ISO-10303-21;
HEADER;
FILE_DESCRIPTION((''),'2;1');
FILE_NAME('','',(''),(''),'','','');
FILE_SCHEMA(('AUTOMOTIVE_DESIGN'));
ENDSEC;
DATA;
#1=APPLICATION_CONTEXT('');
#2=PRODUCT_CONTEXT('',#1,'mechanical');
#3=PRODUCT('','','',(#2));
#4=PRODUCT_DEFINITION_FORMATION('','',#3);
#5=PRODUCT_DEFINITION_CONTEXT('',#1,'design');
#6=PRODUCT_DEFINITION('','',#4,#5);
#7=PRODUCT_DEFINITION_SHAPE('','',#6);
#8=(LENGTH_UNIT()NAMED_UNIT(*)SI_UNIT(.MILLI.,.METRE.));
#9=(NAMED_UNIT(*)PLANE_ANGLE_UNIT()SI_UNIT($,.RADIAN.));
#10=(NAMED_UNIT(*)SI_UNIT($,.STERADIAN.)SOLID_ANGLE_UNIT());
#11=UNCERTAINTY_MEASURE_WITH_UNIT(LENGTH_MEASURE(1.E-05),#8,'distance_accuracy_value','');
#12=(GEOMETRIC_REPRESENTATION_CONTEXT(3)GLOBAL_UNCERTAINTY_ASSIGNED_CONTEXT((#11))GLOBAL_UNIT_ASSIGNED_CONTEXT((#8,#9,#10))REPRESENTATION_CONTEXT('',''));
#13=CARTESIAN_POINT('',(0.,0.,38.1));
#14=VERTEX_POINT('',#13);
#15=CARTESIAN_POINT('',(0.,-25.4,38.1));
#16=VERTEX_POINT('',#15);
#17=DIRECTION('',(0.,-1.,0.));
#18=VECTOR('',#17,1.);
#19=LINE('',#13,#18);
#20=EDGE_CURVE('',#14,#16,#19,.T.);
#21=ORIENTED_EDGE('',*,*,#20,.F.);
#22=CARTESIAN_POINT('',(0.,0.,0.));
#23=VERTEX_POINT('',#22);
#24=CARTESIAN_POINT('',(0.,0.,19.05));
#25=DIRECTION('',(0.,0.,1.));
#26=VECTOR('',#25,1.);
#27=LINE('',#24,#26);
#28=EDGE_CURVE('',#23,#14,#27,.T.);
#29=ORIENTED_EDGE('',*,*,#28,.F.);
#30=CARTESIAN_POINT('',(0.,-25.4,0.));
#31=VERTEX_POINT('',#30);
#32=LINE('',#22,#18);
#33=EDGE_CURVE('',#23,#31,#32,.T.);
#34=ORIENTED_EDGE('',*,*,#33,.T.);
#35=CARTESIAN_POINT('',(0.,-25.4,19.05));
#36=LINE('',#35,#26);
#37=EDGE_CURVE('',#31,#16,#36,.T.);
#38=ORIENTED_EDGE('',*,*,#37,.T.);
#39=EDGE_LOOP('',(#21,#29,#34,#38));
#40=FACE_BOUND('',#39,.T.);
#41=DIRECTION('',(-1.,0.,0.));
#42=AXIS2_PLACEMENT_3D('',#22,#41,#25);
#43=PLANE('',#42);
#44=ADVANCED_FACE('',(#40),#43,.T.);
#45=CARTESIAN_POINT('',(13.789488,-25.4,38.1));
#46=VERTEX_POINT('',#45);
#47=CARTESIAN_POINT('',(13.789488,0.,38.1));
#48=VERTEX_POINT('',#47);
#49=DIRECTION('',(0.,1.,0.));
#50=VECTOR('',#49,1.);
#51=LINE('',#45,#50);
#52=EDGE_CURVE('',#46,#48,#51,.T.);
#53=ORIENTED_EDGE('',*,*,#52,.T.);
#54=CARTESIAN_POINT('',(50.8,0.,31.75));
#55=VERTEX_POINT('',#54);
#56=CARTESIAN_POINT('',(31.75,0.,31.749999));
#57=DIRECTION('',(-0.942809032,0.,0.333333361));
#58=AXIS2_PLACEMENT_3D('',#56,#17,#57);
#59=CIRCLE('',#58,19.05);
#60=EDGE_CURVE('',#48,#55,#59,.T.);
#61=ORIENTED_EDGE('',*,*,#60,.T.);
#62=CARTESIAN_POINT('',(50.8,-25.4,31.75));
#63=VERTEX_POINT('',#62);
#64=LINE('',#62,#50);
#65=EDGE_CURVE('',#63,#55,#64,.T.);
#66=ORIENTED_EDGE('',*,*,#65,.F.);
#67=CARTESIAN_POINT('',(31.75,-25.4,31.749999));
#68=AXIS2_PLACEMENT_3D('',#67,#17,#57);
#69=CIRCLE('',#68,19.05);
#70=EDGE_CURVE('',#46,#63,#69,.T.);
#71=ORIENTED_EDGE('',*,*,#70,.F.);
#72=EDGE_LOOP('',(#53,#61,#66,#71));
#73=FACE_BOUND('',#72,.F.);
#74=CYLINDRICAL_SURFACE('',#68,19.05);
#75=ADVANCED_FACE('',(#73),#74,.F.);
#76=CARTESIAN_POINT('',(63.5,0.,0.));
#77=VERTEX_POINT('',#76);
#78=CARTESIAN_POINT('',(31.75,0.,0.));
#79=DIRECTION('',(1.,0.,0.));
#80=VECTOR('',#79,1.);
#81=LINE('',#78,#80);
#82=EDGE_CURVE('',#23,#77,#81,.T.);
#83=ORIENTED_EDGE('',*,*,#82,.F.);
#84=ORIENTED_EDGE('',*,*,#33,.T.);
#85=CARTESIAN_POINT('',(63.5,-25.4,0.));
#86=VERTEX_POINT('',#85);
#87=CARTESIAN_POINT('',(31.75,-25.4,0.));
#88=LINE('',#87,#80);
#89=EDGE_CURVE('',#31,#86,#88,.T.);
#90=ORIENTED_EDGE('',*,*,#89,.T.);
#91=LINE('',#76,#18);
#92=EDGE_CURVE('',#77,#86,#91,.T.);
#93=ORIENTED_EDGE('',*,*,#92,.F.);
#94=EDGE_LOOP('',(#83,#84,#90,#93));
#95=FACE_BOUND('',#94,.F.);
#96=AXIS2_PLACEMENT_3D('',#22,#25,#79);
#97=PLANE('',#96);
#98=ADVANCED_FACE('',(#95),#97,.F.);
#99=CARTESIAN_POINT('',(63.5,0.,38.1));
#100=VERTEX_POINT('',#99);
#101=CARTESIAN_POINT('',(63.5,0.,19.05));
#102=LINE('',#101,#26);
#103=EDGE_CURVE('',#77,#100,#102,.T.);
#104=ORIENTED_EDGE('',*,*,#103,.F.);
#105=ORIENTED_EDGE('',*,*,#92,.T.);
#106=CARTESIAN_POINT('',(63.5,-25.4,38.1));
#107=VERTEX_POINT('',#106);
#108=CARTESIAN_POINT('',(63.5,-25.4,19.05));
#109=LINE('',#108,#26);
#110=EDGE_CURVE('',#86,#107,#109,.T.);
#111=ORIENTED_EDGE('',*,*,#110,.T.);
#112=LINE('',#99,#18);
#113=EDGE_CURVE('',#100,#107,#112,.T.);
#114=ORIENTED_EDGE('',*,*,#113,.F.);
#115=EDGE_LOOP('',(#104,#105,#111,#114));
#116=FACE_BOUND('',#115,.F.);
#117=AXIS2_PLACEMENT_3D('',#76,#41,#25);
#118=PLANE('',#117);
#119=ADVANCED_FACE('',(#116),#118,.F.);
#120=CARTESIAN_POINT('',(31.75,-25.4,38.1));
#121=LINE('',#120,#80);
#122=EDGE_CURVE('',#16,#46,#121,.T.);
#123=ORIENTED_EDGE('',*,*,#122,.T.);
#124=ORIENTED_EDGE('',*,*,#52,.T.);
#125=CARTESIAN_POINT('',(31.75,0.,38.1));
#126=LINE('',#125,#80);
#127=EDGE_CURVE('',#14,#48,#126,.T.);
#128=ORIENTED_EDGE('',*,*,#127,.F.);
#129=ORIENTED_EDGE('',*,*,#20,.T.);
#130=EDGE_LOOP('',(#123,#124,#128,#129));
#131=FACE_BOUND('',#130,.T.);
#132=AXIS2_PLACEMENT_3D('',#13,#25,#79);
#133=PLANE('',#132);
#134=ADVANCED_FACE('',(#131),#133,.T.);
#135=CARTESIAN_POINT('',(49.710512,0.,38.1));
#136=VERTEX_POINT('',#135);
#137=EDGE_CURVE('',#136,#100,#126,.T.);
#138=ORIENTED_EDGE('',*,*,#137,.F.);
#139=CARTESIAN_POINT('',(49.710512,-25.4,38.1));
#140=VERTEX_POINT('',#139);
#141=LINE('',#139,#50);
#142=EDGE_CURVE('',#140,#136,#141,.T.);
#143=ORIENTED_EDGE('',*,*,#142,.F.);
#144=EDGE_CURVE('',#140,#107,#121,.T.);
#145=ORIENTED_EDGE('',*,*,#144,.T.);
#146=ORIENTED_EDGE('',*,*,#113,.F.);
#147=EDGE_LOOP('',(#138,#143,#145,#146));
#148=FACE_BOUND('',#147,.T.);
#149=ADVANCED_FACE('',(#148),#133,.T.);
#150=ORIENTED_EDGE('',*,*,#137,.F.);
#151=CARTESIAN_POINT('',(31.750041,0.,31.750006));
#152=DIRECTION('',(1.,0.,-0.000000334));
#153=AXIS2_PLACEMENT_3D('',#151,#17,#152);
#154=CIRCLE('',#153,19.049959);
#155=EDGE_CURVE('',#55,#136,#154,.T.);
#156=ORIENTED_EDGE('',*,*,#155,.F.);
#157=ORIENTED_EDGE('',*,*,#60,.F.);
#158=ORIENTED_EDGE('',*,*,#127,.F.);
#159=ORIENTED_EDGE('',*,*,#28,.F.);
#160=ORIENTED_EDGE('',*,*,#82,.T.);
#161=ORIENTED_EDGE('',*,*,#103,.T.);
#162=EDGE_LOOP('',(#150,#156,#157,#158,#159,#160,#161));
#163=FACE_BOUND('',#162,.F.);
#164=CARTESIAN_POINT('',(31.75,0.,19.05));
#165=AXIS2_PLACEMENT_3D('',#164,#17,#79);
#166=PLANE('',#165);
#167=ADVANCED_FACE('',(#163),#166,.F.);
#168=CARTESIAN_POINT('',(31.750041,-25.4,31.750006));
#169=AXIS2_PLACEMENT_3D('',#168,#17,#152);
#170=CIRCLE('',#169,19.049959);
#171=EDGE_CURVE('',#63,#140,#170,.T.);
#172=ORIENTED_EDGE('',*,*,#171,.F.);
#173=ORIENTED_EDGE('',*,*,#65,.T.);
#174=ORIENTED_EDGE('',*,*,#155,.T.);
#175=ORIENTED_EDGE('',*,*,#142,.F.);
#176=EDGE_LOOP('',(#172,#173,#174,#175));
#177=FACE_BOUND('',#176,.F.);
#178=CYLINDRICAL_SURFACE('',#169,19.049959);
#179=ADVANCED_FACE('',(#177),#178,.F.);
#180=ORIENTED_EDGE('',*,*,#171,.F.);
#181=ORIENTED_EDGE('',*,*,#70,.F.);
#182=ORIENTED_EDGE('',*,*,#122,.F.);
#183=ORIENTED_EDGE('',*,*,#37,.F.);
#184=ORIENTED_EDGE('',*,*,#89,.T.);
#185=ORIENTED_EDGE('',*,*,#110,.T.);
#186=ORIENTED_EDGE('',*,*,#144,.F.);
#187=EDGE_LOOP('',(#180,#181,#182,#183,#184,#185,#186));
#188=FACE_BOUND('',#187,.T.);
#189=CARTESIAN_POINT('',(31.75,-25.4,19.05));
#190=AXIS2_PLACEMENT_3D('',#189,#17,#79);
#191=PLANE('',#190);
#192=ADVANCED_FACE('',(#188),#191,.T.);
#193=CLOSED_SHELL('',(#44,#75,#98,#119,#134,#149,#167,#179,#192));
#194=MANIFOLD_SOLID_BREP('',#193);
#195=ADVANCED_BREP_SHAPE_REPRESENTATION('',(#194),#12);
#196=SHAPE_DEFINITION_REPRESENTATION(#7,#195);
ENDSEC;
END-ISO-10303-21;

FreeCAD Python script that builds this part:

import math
import FreeCAD as App
import Part
import Sketcher
from FreeCAD import Vector
Q = App.Units.Quantity


def add_polygon(sketch, points):
    """Adds a closed chain of lines whose ends are joined by coincident constraints."""
    first, n = sketch.GeometryCount, len(points)
    for a, b in zip(points, points[1:] + points[:1]):
        sketch.addGeometry(Part.LineSegment(App.Vector(*a, 0), App.Vector(*b, 0)), False)
    for i in range(n):
        sketch.addConstraint(Sketcher.Constraint("Coincident", first + i, 2, first + (i + 1) % n, 1))

doc = App.newDocument("Part")
body = doc.addObject("PartDesign::Body", "Body")

# Sketch on XZ plane
sketch1 = body.newObject("Sketcher::SketchObject", "Sketch")
sketch1.AttachmentSupport = (doc.getObject("XZ_Plane"), [""])
sketch1.MapMode = "FlatFace"
add_polygon(sketch1, [(0, 38.1), (0, 0), (63.5, 0), (63.5, 38.1)])  # lines 0-3
sketch1.addConstraint(Sketcher.Constraint("Vertical", 0))
sketch1.addConstraint(Sketcher.Constraint("Horizontal", 1))
sketch1.addConstraint(Sketcher.Constraint("Vertical", 2))
sketch1.addConstraint(Sketcher.Constraint("Horizontal", 3))
sketch1.addConstraint(Sketcher.Constraint("Coincident", 0, 2, -1, 1))
sketch1.addConstraint(Sketcher.Constraint("DistanceX", 1, 1, 1, 2, Q("2.5 in")))
sketch1.addConstraint(Sketcher.Constraint("DistanceY", 0, 2, 0, 1, Q("1.5 in")))
pad1 = body.newObject("PartDesign::Pad", "Pad")
pad1.Profile = sketch1
pad1.Length = Q("1 in")

# Sketch on XZ plane
sketch2 = body.newObject("Sketcher::SketchObject", "Sketch001")
sketch2.AttachmentSupport = (doc.getObject("XZ_Plane"), [""])
sketch2.MapMode = "FlatFace"
sketch2.AttachmentOffset = App.Placement(Vector(0, 0, 1 * 25.4), App.Rotation())
sketch2.addGeometry(Part.ArcOfCircle(Part.Circle(Vector(31.75, 31.749999, 0), Vector(0, 0, 1), 19.05), math.radians(160.528778), math.radians(360.000002)), False)
sketch2.addGeometry(Part.ArcOfCircle(Part.Circle(Vector(31.750041, 31.750006, 0), Vector(0, 0, 1), 19.049959), math.radians(-0.000019), math.radians(19.471244)), False)
sketch2.addGeometry(Part.LineSegment(Vector(49.710512, 38.1, 0), Vector(13.789488, 38.1, 0)), False)
sketch2.addConstraint(Sketcher.Constraint("Tangent", 0, 2, 1, 1))
sketch2.addConstraint(Sketcher.Constraint("Coincident", 1, 2, 2, 1))
sketch2.addConstraint(Sketcher.Constraint("Coincident", 2, 2, 0, 1))
sketch2.addConstraint(Sketcher.Constraint("Horizontal", 2))
sketch2.addConstraint(Sketcher.Constraint("Radius", 0, Q("0.75 in")))
sketch2.addConstraint(Sketcher.Constraint("DistanceX", -1, 1, 0, 2, Q("2 in")))
sketch2.addConstraint(Sketcher.Constraint("DistanceY", -1, 1, 1, 2, Q("1.5 in")))
sketch2.addConstraint(Sketcher.Constraint("DistanceY", -1, 1, 0, 3, Q("1.25 in")))
sketch2.addConstraint(Sketcher.Constraint("DistanceY", -1, 1, 0, 2, Q("1.25 in")))
sketch2.addConstraint(Sketcher.Constraint("Radius", 1, 19.049959))
pocket1 = body.newObject("PartDesign::Pocket", "Pocket")
pocket1.Profile = sketch2
pocket1.Length = Q("1 in")

doc.recompute()
